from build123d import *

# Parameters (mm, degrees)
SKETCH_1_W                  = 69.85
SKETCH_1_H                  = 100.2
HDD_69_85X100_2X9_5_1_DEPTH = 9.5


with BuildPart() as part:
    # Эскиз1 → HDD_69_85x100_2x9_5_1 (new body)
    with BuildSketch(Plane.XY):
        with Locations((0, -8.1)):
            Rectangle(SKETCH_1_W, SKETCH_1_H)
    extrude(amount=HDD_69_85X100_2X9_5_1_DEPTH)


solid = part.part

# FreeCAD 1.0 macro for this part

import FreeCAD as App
import Part
import Sketcher


def add_polygon(sketch, points):
    """Adds a closed chain of lines whose ends are joined by coincident constraints."""
    first, n = sketch.GeometryCount, len(points)
    for a, b in zip(points, points[1:] + points[:1]):
        sketch.addGeometry(Part.LineSegment(App.Vector(*a, 0), App.Vector(*b, 0)), False)
    for i in range(n):
        sketch.addConstraint(Sketcher.Constraint("Coincident", first + i, 2, first + (i + 1) % n, 1))

doc = App.newDocument("Part")
body = doc.addObject("PartDesign::Body", "Body")

sketch1 = body.newObject("Sketcher::SketchObject", "Sketch")
sketch1.AttachmentSupport = (doc.getObject("XY_Plane"), [""])
sketch1.MapMode = "FlatFace"
add_polygon(sketch1, [(-35, 42), (-35, -58), (35, -58), (35, 42)])
sketch1.addConstraint([
    Sketcher.Constraint("Vertical", 0),
    Sketcher.Constraint("Horizontal", 1),
    Sketcher.Constraint("Vertical", 2),
    Sketcher.Constraint("Horizontal", 3),
    Sketcher.Constraint("DistanceY", 0, 2, 0, 1, 100.2),
    Sketcher.Constraint("DistanceY", -1, 1, 2, 2, 42.0),
    Sketcher.Constraint("DistanceX", 1, 1, 1, 2, 69.85),
    Sketcher.Constraint("DistanceX", 0, 2, -1, 1, 34.925),
])
pad1 = body.newObject("PartDesign::Pad", "Pad")
pad1.Profile = sketch1
pad1.Length = 9.5

doc.recompute()
